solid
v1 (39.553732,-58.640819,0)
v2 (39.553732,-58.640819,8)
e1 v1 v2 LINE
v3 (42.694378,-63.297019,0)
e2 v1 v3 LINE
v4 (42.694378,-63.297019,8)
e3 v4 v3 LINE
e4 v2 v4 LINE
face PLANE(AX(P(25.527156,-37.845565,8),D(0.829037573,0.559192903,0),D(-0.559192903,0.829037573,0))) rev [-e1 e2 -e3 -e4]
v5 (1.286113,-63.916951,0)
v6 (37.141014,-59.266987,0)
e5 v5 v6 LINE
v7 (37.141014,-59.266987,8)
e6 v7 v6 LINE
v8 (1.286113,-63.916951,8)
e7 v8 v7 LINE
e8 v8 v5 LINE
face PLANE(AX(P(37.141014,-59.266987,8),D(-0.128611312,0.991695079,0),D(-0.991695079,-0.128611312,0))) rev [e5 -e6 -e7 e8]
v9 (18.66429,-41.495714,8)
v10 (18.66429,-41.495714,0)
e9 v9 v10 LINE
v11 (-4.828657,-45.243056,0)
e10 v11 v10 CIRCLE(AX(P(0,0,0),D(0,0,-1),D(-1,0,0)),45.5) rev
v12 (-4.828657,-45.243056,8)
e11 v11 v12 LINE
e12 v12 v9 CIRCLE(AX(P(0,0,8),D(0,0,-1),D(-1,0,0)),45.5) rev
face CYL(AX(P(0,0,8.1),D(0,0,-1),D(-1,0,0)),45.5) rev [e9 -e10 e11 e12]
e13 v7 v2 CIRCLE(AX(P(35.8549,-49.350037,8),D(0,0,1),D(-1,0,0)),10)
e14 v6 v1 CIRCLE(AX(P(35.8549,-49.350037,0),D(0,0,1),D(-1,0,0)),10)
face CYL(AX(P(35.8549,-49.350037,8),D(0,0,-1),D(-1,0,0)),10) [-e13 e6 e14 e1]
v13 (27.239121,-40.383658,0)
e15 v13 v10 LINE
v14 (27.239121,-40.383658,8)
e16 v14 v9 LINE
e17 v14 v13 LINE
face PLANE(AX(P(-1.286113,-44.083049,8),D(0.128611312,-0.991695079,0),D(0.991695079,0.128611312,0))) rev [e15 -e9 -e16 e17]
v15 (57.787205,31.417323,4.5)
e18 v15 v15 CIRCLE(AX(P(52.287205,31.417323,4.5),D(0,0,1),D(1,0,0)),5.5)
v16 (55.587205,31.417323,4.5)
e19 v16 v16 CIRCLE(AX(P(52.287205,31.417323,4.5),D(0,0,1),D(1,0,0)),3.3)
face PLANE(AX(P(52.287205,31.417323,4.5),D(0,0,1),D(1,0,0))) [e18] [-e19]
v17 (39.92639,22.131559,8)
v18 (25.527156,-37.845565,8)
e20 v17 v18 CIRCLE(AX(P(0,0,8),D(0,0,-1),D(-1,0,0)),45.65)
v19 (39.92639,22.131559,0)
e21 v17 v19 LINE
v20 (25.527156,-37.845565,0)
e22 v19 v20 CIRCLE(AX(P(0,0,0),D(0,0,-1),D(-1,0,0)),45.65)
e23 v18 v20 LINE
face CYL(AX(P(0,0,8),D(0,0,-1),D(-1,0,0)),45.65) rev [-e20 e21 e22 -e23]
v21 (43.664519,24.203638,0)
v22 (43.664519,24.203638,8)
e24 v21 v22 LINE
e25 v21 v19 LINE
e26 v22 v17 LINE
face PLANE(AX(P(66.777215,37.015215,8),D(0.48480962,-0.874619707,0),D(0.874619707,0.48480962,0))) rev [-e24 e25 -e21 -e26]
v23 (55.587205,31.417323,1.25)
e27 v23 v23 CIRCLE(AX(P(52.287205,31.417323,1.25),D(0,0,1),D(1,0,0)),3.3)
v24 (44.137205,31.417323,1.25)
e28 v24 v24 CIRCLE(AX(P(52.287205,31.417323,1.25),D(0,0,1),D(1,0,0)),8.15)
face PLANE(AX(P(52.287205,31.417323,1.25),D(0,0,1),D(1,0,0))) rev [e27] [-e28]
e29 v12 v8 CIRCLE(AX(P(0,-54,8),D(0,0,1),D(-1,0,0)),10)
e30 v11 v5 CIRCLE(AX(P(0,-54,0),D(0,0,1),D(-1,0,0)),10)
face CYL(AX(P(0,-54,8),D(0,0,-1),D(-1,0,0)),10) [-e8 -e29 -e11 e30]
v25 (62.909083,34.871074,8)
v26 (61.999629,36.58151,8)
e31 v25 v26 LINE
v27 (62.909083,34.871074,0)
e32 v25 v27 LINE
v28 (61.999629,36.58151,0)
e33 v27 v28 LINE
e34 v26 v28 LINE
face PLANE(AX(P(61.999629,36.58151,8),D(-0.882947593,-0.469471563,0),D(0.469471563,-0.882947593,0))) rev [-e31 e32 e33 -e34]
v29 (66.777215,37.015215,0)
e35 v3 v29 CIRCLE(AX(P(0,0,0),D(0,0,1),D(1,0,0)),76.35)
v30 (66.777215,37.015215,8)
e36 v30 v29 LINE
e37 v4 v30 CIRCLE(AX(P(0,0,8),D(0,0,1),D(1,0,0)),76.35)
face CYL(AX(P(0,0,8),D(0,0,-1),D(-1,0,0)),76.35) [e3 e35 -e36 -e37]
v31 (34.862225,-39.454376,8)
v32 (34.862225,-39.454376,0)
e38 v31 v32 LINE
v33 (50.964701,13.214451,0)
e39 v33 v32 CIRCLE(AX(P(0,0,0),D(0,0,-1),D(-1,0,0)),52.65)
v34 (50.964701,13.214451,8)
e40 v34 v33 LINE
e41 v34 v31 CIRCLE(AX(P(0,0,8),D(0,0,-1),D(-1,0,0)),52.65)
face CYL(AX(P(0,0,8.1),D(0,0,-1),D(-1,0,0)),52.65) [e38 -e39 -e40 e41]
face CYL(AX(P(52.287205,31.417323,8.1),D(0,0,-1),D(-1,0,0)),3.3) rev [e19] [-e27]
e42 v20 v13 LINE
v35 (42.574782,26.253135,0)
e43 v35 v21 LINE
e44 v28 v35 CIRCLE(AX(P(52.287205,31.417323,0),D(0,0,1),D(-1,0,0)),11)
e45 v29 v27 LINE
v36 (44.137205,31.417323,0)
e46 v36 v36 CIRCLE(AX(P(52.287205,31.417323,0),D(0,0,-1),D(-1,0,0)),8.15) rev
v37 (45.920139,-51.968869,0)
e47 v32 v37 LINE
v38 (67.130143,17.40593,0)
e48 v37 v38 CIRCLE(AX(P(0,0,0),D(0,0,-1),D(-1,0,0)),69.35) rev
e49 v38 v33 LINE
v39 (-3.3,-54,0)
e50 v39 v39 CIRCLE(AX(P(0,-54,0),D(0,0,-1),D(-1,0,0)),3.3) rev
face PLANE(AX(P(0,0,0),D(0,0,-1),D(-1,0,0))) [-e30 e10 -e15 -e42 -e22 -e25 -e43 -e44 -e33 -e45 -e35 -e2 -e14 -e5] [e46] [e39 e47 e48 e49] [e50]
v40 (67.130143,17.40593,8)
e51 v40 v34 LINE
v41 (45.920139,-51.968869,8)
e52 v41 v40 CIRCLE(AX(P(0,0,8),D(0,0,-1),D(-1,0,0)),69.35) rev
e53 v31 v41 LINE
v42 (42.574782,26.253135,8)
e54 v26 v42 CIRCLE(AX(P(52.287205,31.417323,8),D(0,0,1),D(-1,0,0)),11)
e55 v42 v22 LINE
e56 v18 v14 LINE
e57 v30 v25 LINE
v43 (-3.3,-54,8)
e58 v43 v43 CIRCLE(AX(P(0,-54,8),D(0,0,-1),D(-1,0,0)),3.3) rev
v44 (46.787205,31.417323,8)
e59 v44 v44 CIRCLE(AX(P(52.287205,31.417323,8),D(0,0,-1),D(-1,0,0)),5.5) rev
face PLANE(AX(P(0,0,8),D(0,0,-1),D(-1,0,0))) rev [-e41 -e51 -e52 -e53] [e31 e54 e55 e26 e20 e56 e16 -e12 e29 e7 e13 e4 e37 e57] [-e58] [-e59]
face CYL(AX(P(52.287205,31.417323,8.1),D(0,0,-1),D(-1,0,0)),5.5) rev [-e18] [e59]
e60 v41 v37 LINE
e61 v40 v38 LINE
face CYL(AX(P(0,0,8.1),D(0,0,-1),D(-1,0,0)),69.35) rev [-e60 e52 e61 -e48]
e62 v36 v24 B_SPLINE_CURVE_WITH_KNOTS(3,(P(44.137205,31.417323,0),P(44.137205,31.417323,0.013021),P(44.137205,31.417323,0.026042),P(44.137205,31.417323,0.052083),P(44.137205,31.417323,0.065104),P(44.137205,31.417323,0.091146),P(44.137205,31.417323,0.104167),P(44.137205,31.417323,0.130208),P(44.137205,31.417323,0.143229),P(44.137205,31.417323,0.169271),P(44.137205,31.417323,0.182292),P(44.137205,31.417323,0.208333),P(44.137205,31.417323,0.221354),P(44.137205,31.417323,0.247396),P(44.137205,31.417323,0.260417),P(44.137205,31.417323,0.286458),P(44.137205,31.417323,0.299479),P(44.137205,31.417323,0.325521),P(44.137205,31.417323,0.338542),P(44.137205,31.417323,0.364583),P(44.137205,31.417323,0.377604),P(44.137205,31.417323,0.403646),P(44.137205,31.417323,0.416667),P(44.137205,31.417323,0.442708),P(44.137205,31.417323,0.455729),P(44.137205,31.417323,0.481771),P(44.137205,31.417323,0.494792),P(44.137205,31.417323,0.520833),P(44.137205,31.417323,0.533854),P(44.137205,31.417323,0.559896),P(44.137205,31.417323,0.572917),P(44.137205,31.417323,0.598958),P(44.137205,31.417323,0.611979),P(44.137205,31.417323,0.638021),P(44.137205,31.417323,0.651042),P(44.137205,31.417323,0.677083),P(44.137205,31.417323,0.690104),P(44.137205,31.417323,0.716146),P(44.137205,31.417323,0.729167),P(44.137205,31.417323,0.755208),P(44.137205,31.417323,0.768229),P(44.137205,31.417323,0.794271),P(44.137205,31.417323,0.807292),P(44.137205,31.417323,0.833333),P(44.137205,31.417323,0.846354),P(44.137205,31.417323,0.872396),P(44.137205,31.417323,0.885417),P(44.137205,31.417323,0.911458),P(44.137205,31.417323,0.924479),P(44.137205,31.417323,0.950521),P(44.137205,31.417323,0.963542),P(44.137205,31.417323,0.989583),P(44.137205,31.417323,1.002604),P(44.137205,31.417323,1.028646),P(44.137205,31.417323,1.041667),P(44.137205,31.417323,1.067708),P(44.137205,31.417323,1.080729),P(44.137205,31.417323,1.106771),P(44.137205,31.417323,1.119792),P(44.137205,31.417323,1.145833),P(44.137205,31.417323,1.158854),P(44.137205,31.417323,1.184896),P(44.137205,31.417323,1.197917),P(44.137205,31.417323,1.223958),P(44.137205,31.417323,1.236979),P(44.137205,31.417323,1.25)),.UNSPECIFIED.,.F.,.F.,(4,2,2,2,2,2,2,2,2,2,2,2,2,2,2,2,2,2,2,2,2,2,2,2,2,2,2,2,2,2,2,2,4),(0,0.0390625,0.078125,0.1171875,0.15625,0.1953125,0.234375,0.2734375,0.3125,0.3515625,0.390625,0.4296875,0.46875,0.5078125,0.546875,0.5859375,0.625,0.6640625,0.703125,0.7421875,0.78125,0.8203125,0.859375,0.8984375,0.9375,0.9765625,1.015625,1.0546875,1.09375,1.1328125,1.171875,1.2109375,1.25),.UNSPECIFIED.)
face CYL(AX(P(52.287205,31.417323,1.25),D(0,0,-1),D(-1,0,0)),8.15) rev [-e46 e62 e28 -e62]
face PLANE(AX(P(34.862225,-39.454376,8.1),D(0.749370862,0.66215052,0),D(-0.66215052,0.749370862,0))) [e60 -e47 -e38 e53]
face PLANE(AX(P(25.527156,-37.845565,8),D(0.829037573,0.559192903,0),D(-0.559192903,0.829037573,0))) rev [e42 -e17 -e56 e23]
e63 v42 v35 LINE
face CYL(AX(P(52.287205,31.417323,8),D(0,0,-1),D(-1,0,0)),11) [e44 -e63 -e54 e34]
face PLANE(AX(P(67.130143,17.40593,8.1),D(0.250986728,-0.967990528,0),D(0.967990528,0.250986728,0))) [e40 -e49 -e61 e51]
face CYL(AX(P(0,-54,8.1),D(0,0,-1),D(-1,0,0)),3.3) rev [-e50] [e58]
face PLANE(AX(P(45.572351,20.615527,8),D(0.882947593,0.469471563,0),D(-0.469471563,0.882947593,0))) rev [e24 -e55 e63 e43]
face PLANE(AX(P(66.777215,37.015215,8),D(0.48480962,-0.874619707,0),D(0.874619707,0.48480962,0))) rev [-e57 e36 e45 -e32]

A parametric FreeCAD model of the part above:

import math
import FreeCAD as App
import Part
import Sketcher

V = App.Vector
Q = App.Units.Quantity

doc = App.newDocument("Part")
body = doc.addObject("PartDesign::Body", "Body")

# Sketch on XY plane
sketch1 = doc.addObject("Sketcher::SketchObject", "Sketch")
body.addObject(sketch1)
sketch1.AttachmentSupport = (doc.XY_Plane, [""])
sketch1.MapMode = "FlatFace"
sketch1.addGeometry([
    Part.LineSegment(V(26, -38, 0), V(43, -63, 0)),
    Part.ArcOfCircle(Part.Circle(V(0, 0, 0), V(0, 0, 1), 76), math.radians(-56), math.radians(29)),
    Part.LineSegment(V(67, 37, 0), V(40, 22, 0)),
    Part.ArcOfCircle(Part.Circle(V(0, 0, 0), V(0, 0, 1), 46), math.radians(-56), math.radians(29)),
], False)
sketch1.addConstraint([
    Sketcher.Constraint("Coincident", 0, 2, 1, 1),
    Sketcher.Constraint("Coincident", 1, 2, 2, 1),
    Sketcher.Constraint("Coincident", 2, 2, 3, 2),
    Sketcher.Constraint("Coincident", 3, 1, 0, 1),
    Sketcher.Constraint("Coincident", 1, 3, -1, 1),
    Sketcher.Constraint("Coincident", 3, 3, -1, 1),
    Sketcher.Constraint("Angle", 0, Q("-56 deg")),
    Sketcher.Constraint("Angle", 2, Q("-151 deg")),
    Sketcher.Constraint("Radius", 1, Q("76.35 mm")),
    Sketcher.Constraint("Radius", 3, Q("45.65 mm")),
    Sketcher.Constraint("DistanceX", -1, 1, 0, 2, Q("42.694378 mm")),
    Sketcher.Constraint("DistanceX", -1, 1, 2, 2, Q("39.92639 mm")),
])
pad1 = doc.addObject("PartDesign::Pad", "Pad")
body.addObject(pad1)
pad1.Profile = sketch1
pad1.Length = 8

# Sketch on XY plane
sketch2 = doc.addObject("Sketcher::SketchObject", "Sketch001")
body.addObject(sketch2)
sketch2.AttachmentSupport = (doc.XY_Plane, [""])
sketch2.MapMode = "FlatFace"
sketch2.addGeometry([
    Part.LineSegment(V(35, -39, 0), V(-1, -44, 0)),
    Part.ArcOfCircle(Part.Circle(V(0, -54, 0), V(0, 0, 1), 10), math.radians(97), math.radians(277)),
    Part.LineSegment(V(1, -64, 0), V(37, -59, 0)),
    Part.ArcOfCircle(Part.Circle(V(36, -49, 0), V(0, 0, 1), 10), math.radians(-83), math.radians(97)),
], False)
sketch2.addConstraint([
    Sketcher.Constraint("Tangent", 0, 2, 1, 1),
    Sketcher.Constraint("Tangent", 1, 2, 2, 1),
    Sketcher.Constraint("Tangent", 2, 2, 3, 1),
    Sketcher.Constraint("Tangent", 3, 2, 0, 1),
    Sketcher.Constraint("Equal", 1, 3),
    Sketcher.Constraint("PointOnObject", 1, 3, -2),
    Sketcher.Constraint("Radius", 1, Q("10 mm")),
    Sketcher.Constraint("DistanceY", 1, 3, -1, 1, Q("54 mm")),
    Sketcher.Constraint("DistanceX", -1, 1, 3, 3, Q("35.8549 mm")),
    Sketcher.Constraint("DistanceY", 1, 2, 0, 2, Q("19.833902 mm")),
])
pad2 = doc.addObject("PartDesign::Pad", "Pad001")
body.addObject(pad2)
pad2.Profile = sketch2
pad2.Length = 8

# Sketch on XY plane
sketch3 = doc.addObject("Sketcher::SketchObject", "Sketch002")
body.addObject(sketch3)
sketch3.AttachmentSupport = (doc.XY_Plane, [""])
sketch3.MapMode = "FlatFace"
sketch3.addGeometry([
    Part.LineSegment(V(43, 26, 0), V(46, 21, 0)),
    Part.ArcOfCircle(Part.Circle(V(55, 26, 0), V(0, 0, 1), 11), math.radians(-152), math.radians(28)),
    Part.LineSegment(V(65, 31, 0), V(62, 37, 0)),
    Part.ArcOfCircle(Part.Circle(V(52, 31, 0), V(0, 0, 1), 11), math.radians(28), math.radians(208)),
], False)
sketch3.addConstraint([
    Sketcher.Constraint("Tangent", 0, 2, 1, 1),
    Sketcher.Constraint("Tangent", 1, 2, 2, 1),
    Sketcher.Constraint("Tangent", 2, 2, 3, 1),
    Sketcher.Constraint("Tangent", 3, 2, 0, 1),
    Sketcher.Constraint("Equal", 1, 3),
    Sketcher.Constraint("Radius", 1, Q("11 mm")),
    Sketcher.Constraint("Angle", 0, Q("-62 deg")),
    Sketcher.Constraint("DistanceX", -1, 1, 1, 2, Q("64.997199 mm")),
    Sketcher.Constraint("DistanceY", -1, 1, 1, 2, Q("30.943901 mm")),
    Sketcher.Constraint("DistanceX", -1, 1, 2, 2, Q("61.999629 mm")),
])
pad3 = doc.addObject("PartDesign::Pad", "Pad002")
body.addObject(pad3)
pad3.Profile = sketch3
pad3.Length = 8

# Sketch on XY plane
sketch4 = doc.addObject("Sketcher::SketchObject", "Sketch003")
body.addObject(sketch4)
sketch4.AttachmentSupport = (doc.XY_Plane, [""])
sketch4.MapMode = "FlatFace"
sketch4.AttachmentOffset = App.Placement(V(0, 0, -0.1), App.Rotation())
sketch4.addGeometry(Part.Circle(V(0, 0, 0), V(0, 0, 1), 46), False)
sketch4.addConstraint([
    Sketcher.Constraint("Coincident", 0, 3, -1, 1),
    Sketcher.Constraint("Diameter", 0, Q("91 mm")),
])
pocket1 = doc.addObject("PartDesign::Pocket", "Pocket")
body.addObject(pocket1)
pocket1.Profile = sketch4
pocket1.Length = 8.2
pocket1.Reversed = True

# Sketch on XY plane
sketch5 = doc.addObject("Sketcher::SketchObject", "Sketch004")
body.addObject(sketch5)
sketch5.AttachmentSupport = (doc.XY_Plane, [""])
sketch5.MapMode = "FlatFace"
sketch5.AttachmentOffset = App.Placement(V(0, 0, -0.1), App.Rotation())
sketch5.addGeometry([
    Part.LineSegment(V(35, -39, 0), V(46, -52, 0)),
    Part.ArcOfCircle(Part.Circle(V(0, 0, 0), V(0, 0, 1), 69), math.radians(-49), math.radians(15)),
    Part.LineSegment(V(67, 17, 0), V(51, 13, 0)),
    Part.ArcOfCircle(Part.Circle(V(0, 0, 0), V(0, 0, 1), 53), math.radians(-49), math.radians(15)),
], False)
sketch5.addConstraint([
    Sketcher.Constraint("Coincident", 0, 2, 1, 1),
    Sketcher.Constraint("Coincident", 1, 2, 2, 1),
    Sketcher.Constraint("Coincident", 2, 2, 3, 2),
    Sketcher.Constraint("Coincident", 3, 1, 0, 1),
    Sketcher.Constraint("Coincident", 1, 3, -1, 1),
    Sketcher.Constraint("Coincident", 3, 3, -1, 1),
    Sketcher.Constraint("Radius", 1, Q("69.35 mm")),
    Sketcher.Constraint("Radius", 3, Q("52.65 mm")),
    Sketcher.Constraint("DistanceX", -1, 1, 2, 2, Q("50.964701 mm")),
    Sketcher.Constraint("DistanceY", 0, 2, 1, 2, Q("69.374799 mm")),
    Sketcher.Constraint("DistanceX", -1, 1, 0, 2, Q("45.920139 mm")),
    Sketcher.Constraint("DistanceX", 3, 1, 1, 2, Q("32.267918 mm")),
])
pocket2 = doc.addObject("PartDesign::Pocket", "Pocket001")
body.addObject(pocket2)
pocket2.Profile = sketch5
pocket2.Length = 8.2
pocket2.Reversed = True

# Sketch on XY plane
sketch6 = doc.addObject("Sketcher::SketchObject", "Sketch005")
body.addObject(sketch6)
sketch6.AttachmentSupport = (doc.XY_Plane, [""])
sketch6.MapMode = "FlatFace"
sketch6.AttachmentOffset = App.Placement(V(0, 0, -0.1), App.Rotation())
sketch6.addGeometry([
    Part.Circle(V(0, -54, 0), V(0, 0, 1), 3.3),
    Part.Circle(V(52.3, 31.4, 0), V(0, 0, 1), 3.3),
], False)
sketch6.addConstraint([
    Sketcher.Constraint("Equal", 0, 1),
    Sketcher.Constraint("PointOnObject", 0, 3, -2),
    Sketcher.Constraint("Diameter", 0, Q("6.6 mm")),
    Sketcher.Constraint("DistanceY", 0, 3, -1, 1, Q("54 mm")),
    Sketcher.Constraint("DistanceX", -1, 1, 1, 3, Q("52.287205 mm")),
    Sketcher.Constraint("DistanceY", -1, 1, 1, 3, Q("31.417323 mm")),
])
pocket3 = doc.addObject("PartDesign::Pocket", "Pocket002")
body.addObject(pocket3)
pocket3.Profile = sketch6
pocket3.Length = 8.2
pocket3.Reversed = True

# Sketch on XY plane
sketch7 = doc.addObject("Sketcher::SketchObject", "Sketch006")
body.addObject(sketch7)
sketch7.AttachmentSupport = (doc.XY_Plane, [""])
sketch7.MapMode = "FlatFace"
sketch7.AttachmentOffset = App.Placement(V(0, 0, -0.1), App.Rotation())
sketch7.addGeometry(Part.Circle(V(52, 31, 0), V(0, 0, 1), 5), False)
sketch7.addConstraint([
    Sketcher.Constraint("Diameter", 0, Q("10.12 mm")),
    Sketcher.Constraint("DistanceX", -1, 1, 0, 3, Q("52.287205 mm")),
    Sketcher.Constraint("DistanceY", -1, 1, 0, 3, Q("31.417323 mm")),
])
pocket4 = doc.addObject("PartDesign::Pocket", "Pocket003")
body.addObject(pocket4)
pocket4.Profile = sketch7
pocket4.Length = 1.35
pocket4.Reversed = True

# Sketch on XY plane
sketch8 = doc.addObject("Sketcher::SketchObject", "Sketch007")
body.addObject(sketch8)
sketch8.AttachmentSupport = (doc.XY_Plane, [""])
sketch8.MapMode = "FlatFace"
sketch8.AttachmentOffset = App.Placement(V(0, 0, 4.5), App.Rotation())
sketch8.addGeometry(Part.Circle(V(52, 31, 0), V(0, 0, 1), 6), False)
sketch8.addConstraint([
    Sketcher.Constraint("Diameter", 0, Q("11 mm")),
    Sketcher.Constraint("DistanceX", -1, 1, 0, 3, Q("52.287205 mm")),
    Sketcher.Constraint("DistanceY", -1, 1, 0, 3, Q("31.417323 mm")),
])
pocket5 = doc.addObject("PartDesign::Pocket", "Pocket004")
body.addObject(pocket5)
pocket5.Profile = sketch8
pocket5.Length = 3.6
pocket5.Reversed = True

# Sketch on XY plane
sketch9 = doc.addObject("Sketcher::SketchObject", "Sketch008")
body.addObject(sketch9)
sketch9.AttachmentSupport = (doc.XY_Plane, [""])
sketch9.MapMode = "FlatFace"
sketch9.AttachmentOffset = App.Placement(V(0, 0, -0.1), App.Rotation())
sketch9.addGeometry(Part.Circle(V(52, 31, 0), V(0, 0, 1), 8), False)
sketch9.addConstraint([
    Sketcher.Constraint("Diameter", 0, Q("16.3 mm")),
    Sketcher.Constraint("DistanceX", -1, 1, 0, 3, Q("52.287205 mm")),
    Sketcher.Constraint("DistanceY", -1, 1, 0, 3, Q("31.417323 mm")),
])
pocket6 = doc.addObject("PartDesign::Pocket", "Pocket005")
body.addObject(pocket6)
pocket6.Profile = sketch9
pocket6.Length = 1.35
pocket6.Reversed = True

doc.recompute()
